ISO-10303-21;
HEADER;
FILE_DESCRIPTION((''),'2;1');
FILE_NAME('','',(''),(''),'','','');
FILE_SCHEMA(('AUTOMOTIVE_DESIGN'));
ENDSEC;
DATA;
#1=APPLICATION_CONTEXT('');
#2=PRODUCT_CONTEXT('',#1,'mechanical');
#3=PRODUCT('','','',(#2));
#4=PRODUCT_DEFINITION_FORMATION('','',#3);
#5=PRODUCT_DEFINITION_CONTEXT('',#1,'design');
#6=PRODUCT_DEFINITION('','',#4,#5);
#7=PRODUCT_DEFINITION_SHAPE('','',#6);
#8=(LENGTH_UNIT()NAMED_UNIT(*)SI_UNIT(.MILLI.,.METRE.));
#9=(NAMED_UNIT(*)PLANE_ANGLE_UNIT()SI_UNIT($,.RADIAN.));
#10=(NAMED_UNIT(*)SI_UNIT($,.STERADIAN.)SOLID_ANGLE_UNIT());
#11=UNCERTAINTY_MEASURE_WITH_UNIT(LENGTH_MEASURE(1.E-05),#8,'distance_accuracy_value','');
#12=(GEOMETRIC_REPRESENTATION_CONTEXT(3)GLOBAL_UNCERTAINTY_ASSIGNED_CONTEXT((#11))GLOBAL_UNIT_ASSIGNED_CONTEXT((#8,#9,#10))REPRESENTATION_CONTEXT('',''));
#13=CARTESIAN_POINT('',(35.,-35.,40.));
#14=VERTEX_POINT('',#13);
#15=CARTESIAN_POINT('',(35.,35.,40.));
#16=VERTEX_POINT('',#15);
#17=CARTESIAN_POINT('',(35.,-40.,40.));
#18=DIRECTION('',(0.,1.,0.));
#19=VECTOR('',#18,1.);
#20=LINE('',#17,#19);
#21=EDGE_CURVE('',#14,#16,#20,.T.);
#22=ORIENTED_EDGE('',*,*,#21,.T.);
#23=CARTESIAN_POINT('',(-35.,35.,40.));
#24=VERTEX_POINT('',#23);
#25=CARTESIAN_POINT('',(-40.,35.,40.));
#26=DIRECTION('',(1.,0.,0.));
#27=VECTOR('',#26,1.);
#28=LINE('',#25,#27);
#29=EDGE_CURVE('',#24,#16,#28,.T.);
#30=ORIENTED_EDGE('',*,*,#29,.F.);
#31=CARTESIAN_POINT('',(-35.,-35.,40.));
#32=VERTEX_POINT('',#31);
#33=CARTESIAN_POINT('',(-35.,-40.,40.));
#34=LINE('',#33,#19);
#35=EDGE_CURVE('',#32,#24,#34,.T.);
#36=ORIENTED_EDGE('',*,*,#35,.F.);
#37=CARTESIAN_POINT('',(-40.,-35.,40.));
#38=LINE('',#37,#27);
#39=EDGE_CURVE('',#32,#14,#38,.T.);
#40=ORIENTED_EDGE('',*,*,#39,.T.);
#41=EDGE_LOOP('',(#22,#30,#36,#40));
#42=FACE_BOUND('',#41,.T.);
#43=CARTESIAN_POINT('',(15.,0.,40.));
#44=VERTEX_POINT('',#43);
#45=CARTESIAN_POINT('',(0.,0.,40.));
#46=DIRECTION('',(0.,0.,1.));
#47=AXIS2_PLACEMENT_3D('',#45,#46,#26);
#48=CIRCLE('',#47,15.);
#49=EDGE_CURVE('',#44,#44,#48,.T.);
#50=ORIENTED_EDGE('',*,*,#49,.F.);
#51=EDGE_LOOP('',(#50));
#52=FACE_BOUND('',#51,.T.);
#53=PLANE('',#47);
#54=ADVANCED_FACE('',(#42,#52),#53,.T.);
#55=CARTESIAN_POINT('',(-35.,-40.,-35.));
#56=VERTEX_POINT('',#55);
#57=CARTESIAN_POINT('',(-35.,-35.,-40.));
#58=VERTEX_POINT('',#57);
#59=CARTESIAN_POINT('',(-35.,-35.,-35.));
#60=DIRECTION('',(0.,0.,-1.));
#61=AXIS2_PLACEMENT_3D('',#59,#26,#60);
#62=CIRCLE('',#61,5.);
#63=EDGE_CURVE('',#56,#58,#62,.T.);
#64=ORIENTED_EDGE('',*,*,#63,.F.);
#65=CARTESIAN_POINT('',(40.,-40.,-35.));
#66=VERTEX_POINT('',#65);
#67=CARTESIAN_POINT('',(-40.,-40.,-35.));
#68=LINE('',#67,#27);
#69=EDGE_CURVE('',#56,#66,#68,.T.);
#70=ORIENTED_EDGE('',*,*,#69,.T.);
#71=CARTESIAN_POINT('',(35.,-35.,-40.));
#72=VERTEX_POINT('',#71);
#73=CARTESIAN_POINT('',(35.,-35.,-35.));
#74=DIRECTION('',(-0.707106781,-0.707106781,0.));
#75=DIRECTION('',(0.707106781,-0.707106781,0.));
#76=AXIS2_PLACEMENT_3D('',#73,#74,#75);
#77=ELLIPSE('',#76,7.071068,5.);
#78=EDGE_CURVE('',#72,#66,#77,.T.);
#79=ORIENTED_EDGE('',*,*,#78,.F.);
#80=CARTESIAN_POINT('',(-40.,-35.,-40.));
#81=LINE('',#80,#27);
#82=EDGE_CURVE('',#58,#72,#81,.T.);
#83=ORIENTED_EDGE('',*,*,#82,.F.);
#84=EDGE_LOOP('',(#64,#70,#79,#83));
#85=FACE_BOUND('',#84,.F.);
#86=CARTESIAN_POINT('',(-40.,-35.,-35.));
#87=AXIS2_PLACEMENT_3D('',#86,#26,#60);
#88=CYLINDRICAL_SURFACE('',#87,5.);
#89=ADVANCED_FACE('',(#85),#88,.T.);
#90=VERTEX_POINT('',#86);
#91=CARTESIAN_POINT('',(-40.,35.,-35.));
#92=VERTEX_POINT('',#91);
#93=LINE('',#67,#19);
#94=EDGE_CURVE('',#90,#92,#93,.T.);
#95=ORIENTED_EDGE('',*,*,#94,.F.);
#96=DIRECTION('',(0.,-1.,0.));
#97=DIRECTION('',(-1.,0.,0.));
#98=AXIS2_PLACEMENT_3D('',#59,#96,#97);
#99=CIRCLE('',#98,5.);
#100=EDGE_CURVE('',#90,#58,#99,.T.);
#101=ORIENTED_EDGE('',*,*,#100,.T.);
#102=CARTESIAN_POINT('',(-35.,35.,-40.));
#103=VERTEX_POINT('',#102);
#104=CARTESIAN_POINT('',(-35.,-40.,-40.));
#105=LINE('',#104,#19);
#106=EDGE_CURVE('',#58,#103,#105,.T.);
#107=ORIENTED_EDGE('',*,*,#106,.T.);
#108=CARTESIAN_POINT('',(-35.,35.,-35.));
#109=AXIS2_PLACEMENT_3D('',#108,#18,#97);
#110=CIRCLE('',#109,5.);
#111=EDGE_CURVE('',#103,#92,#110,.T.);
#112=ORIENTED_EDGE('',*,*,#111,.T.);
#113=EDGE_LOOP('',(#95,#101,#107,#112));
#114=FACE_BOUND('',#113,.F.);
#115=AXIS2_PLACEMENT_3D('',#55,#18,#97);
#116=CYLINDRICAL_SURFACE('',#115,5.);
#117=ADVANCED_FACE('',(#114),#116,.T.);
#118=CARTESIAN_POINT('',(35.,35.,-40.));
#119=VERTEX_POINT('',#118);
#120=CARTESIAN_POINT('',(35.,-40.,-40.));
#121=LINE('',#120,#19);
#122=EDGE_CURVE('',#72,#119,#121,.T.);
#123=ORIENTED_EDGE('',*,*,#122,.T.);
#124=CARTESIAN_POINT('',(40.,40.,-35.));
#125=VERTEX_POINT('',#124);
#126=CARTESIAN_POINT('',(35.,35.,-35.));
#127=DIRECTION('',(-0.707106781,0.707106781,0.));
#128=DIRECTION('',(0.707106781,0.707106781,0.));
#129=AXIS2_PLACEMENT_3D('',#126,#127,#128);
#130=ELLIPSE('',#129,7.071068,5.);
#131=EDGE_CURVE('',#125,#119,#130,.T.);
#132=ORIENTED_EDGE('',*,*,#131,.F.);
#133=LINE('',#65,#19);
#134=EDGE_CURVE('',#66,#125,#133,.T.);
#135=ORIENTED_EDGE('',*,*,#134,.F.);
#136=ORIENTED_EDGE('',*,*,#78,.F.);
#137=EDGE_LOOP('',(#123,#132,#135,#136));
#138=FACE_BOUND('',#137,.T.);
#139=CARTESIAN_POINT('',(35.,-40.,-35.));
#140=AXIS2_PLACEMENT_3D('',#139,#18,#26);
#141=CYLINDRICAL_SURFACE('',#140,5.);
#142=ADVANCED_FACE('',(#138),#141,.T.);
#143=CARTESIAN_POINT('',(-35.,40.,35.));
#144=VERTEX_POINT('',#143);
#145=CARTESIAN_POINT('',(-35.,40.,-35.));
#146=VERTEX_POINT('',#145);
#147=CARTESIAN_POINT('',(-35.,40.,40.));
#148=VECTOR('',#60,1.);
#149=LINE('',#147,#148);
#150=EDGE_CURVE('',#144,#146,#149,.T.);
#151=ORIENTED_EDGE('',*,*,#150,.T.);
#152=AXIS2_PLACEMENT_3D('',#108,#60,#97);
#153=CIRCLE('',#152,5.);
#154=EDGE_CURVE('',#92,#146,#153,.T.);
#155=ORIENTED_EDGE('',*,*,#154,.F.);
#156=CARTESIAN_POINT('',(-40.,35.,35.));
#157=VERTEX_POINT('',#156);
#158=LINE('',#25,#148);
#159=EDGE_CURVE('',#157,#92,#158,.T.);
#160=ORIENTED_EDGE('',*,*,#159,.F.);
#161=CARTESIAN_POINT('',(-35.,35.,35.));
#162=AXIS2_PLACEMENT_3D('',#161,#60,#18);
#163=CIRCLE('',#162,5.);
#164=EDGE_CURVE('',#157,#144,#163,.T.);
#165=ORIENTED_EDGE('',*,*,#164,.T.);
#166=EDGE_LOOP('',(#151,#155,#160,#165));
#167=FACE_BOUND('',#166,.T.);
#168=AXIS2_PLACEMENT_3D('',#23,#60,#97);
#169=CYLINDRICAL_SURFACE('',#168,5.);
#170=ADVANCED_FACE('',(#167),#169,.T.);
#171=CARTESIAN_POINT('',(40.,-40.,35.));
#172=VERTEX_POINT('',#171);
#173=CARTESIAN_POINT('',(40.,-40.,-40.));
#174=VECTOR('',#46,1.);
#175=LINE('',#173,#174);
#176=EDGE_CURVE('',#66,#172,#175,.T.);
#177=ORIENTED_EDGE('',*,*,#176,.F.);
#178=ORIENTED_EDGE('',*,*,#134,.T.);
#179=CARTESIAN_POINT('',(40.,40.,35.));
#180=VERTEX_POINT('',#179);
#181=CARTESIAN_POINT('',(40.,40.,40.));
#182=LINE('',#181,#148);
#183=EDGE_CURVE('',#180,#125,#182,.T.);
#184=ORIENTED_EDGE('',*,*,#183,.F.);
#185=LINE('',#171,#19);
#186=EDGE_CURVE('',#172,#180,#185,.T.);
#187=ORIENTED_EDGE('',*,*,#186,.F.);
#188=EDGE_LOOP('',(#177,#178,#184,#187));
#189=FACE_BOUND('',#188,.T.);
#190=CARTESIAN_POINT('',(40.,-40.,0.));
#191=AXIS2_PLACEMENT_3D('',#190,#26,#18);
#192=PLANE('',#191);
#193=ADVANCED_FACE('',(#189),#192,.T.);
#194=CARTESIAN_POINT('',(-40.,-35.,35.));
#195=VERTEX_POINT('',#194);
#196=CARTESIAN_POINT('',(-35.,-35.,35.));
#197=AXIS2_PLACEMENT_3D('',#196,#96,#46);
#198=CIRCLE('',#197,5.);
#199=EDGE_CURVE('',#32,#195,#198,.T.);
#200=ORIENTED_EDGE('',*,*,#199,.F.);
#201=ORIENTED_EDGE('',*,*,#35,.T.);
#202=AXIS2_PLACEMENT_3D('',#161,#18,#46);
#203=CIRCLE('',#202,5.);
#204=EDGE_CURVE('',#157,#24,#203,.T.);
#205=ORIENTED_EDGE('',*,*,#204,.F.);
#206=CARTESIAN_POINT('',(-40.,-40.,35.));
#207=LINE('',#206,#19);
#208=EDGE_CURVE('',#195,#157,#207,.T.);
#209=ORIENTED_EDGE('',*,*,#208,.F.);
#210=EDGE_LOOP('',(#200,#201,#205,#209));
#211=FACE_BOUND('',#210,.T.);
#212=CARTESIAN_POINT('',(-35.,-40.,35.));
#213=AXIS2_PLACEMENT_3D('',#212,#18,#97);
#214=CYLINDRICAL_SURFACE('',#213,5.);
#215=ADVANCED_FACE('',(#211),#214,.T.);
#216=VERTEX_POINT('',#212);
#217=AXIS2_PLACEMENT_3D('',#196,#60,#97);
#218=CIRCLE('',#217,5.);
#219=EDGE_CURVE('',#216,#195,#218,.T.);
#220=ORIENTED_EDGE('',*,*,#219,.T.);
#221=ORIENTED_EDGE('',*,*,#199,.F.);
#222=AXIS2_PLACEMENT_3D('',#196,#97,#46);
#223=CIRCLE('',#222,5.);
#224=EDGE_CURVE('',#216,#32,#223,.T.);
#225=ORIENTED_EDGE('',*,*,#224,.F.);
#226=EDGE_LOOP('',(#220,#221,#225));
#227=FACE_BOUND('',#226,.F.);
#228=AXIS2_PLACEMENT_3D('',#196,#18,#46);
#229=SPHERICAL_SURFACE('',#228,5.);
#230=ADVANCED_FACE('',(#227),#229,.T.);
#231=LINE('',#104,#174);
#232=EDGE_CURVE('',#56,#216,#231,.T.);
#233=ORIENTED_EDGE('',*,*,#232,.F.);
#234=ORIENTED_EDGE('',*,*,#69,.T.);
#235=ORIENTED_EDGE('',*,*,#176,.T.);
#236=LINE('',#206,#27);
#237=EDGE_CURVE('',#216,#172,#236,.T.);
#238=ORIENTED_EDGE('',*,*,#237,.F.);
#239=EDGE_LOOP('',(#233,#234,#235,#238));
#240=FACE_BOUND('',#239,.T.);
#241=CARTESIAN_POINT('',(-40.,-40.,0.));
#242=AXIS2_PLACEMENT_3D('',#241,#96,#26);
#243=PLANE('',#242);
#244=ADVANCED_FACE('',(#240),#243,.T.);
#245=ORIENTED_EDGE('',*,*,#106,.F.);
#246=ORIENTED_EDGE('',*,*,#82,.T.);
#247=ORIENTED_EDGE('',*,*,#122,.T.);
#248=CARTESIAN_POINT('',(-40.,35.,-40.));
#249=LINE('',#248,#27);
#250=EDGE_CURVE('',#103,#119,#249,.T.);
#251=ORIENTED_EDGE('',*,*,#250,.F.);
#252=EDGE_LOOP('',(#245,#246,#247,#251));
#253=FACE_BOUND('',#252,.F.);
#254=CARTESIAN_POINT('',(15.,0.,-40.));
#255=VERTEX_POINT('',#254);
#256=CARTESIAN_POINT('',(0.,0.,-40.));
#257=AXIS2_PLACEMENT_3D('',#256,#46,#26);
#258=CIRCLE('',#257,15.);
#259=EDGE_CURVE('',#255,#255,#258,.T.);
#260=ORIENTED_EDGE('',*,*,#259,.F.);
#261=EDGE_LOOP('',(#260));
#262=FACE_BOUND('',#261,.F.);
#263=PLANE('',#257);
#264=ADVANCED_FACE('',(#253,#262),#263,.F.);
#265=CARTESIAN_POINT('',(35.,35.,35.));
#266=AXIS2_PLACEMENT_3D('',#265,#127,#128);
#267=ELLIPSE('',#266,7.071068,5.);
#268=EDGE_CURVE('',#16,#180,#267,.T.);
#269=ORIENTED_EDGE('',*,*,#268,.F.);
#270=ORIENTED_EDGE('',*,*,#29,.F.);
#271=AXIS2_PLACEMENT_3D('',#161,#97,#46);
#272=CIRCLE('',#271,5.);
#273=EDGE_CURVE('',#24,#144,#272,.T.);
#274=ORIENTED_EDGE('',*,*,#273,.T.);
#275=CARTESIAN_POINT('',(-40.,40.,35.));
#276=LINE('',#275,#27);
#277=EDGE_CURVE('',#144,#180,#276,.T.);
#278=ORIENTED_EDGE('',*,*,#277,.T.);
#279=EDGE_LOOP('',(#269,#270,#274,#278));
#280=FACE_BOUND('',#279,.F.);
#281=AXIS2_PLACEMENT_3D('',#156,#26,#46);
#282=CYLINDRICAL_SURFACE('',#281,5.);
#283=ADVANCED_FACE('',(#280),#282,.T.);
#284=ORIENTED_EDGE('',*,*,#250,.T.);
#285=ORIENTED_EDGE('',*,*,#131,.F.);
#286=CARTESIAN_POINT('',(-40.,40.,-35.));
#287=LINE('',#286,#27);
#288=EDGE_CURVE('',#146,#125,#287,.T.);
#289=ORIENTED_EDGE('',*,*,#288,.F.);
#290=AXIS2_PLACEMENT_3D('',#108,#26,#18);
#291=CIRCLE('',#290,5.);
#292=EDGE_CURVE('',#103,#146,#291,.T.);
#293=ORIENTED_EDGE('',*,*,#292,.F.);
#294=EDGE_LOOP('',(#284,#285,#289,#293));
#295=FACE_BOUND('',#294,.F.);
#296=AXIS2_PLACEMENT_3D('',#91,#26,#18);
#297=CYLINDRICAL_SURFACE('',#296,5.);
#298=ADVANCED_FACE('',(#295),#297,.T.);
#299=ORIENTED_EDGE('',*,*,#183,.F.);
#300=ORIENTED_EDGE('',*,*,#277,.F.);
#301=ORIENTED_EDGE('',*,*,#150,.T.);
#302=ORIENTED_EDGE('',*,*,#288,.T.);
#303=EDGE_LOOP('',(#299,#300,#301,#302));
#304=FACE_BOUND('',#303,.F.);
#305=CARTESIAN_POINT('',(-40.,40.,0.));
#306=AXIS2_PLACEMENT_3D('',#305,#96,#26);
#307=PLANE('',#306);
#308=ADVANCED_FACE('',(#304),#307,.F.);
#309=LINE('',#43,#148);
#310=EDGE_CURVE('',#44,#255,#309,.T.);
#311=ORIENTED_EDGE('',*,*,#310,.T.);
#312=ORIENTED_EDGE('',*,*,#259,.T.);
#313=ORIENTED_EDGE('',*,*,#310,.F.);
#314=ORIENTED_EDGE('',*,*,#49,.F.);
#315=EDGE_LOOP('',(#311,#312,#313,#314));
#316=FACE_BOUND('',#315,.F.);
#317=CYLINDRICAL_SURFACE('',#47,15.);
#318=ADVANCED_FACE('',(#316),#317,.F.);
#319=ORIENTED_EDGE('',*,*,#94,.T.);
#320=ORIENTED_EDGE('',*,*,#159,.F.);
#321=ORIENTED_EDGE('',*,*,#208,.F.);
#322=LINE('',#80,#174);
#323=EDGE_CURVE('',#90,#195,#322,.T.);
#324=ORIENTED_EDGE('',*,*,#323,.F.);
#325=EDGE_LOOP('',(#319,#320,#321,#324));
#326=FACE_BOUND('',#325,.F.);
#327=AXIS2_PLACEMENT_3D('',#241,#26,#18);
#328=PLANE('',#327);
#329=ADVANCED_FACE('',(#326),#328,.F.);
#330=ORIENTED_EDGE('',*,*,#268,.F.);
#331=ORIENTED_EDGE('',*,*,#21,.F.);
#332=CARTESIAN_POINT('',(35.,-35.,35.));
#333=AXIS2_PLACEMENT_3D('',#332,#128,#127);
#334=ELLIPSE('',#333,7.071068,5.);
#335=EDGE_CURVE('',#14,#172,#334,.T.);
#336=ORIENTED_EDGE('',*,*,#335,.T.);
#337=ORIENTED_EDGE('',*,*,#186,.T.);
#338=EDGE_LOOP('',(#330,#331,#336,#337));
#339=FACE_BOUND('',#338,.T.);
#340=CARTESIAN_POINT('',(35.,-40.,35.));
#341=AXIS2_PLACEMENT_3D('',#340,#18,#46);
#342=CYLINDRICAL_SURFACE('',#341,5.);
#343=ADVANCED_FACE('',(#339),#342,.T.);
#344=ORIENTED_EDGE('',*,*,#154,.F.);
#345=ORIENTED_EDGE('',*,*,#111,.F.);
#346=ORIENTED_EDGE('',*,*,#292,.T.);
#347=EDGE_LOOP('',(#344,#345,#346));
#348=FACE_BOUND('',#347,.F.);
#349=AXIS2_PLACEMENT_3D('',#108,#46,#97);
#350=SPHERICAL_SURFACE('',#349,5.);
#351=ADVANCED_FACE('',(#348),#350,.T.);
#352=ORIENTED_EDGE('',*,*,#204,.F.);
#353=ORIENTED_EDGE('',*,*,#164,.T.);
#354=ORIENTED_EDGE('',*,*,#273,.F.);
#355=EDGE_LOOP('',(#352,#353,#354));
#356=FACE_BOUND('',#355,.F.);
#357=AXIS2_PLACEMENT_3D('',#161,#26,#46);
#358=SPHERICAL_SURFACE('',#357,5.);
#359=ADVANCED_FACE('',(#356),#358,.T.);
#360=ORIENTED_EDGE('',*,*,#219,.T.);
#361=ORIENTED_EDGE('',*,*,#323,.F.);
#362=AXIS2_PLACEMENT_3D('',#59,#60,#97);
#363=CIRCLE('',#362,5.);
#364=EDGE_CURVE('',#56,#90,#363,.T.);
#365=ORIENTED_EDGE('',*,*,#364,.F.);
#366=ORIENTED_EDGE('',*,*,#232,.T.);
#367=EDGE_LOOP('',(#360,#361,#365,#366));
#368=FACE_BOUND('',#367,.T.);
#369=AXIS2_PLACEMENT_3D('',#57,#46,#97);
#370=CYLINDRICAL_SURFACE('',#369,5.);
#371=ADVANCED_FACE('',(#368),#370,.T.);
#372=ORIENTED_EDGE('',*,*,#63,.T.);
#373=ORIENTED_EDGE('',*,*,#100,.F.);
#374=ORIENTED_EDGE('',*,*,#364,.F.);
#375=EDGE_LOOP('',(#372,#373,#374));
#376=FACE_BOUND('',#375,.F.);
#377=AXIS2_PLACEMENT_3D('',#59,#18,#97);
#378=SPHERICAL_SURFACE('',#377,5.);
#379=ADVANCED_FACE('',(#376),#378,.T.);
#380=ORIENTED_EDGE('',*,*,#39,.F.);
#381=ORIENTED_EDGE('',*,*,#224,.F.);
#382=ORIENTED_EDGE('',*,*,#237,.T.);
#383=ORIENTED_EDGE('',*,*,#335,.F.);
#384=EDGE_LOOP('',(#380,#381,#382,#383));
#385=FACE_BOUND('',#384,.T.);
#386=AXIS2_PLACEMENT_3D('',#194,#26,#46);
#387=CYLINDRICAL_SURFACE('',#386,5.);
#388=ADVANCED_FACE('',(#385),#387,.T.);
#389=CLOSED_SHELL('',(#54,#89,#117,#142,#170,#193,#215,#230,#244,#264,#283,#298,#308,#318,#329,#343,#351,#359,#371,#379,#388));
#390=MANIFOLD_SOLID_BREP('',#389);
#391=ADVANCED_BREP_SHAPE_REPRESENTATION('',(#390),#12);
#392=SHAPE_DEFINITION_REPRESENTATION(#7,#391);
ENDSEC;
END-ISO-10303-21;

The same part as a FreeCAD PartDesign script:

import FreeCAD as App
import Part
import Sketcher
from FreeCAD import Vector
Q = App.Units.Quantity


def edges_at(feature, points):
    """Names of the edges that pass closest to the given points."""
    edges = feature.Shape.Edges
    near = lambda p: min(range(len(edges)), key=lambda i: edges[i].distToShape(Part.Vertex(*p))[0])
    return sorted({f"Edge{near(p) + 1}" for p in points})

doc = App.newDocument("Part")
body = doc.addObject("PartDesign::Body", "Body")

# Sketch on XY plane
sketch1 = doc.addObject("Sketcher::SketchObject", "Sketch")
body.addObject(sketch1)
sketch1.AttachmentSupport = (doc.XY_Plane, [""])
sketch1.MapMode = "FlatFace"
sketch1.addGeometry([
    Part.LineSegment(Vector(-40, 40, 0), Vector(-40, -40, 0)),
    Part.LineSegment(Vector(-40, -40, 0), Vector(40, -40, 0)),
    Part.LineSegment(Vector(40, -40, 0), Vector(40, 40, 0)),
    Part.LineSegment(Vector(40, 40, 0), Vector(-40, 40, 0)),
], False)
sketch1.addConstraint([
    Sketcher.Constraint("Coincident", 0, 2, 1, 1),
    Sketcher.Constraint("Coincident", 1, 2, 2, 1),
    Sketcher.Constraint("Coincident", 2, 2, 3, 1),
    Sketcher.Constraint("Coincident", 3, 2, 0, 1),
    Sketcher.Constraint("Vertical", 0),
    Sketcher.Constraint("Horizontal", 1),
    Sketcher.Constraint("Vertical", 2),
    Sketcher.Constraint("Horizontal", 3),
    Sketcher.Constraint("Symmetric", 0, 2, 2, 2, -1, 1),
    Sketcher.Constraint("Equal", 3, 0),
    Sketcher.Constraint("DistanceX", 1, 1, 1, 2, Q("80 mm")),
])
pad1 = doc.addObject("PartDesign::Pad", "Pad")
body.addObject(pad1)
pad1.Profile = sketch1
pad1.Length = 80
pad1.Midplane = True
doc.recompute()

fillet = doc.addObject("PartDesign::Fillet", "Fillet")
body.addObject(fillet)
fillet.Base = (pad1, edges_at(pad1, [
    (40, 0, 40),
    (0, 40, 40),
    (-40, 0, 40),
    (0, -40, 40),
    (-40, 40, 0),
    (-40, 0, -40),
    (-40, -40, 0),
    (0, 40, -40),
    (0, -40, -40),
    (40, 0, -40),
]))
fillet.Radius = 5

# Sketch on XY plane
sketch2 = doc.addObject("Sketcher::SketchObject", "Sketch001")
body.addObject(sketch2)
sketch2.AttachmentSupport = (doc.XY_Plane, [""])
sketch2.MapMode = "FlatFace"
sketch2.AttachmentOffset = App.Placement(Vector(0, 0, 40), App.Rotation())
sketch2.addGeometry(Part.Circle(Vector(0, 0, 0), Vector(0, 0, 1), 15), False)
sketch2.addConstraint([
    Sketcher.Constraint("Coincident", 0, 3, -1, 1),
    Sketcher.Constraint("Diameter", 0, Q("30 mm")),
])
pocket1 = doc.addObject("PartDesign::Pocket", "Pocket")
body.addObject(pocket1)
pocket1.Profile = sketch2
pocket1.Type = "ThroughAll"

doc.recompute()
